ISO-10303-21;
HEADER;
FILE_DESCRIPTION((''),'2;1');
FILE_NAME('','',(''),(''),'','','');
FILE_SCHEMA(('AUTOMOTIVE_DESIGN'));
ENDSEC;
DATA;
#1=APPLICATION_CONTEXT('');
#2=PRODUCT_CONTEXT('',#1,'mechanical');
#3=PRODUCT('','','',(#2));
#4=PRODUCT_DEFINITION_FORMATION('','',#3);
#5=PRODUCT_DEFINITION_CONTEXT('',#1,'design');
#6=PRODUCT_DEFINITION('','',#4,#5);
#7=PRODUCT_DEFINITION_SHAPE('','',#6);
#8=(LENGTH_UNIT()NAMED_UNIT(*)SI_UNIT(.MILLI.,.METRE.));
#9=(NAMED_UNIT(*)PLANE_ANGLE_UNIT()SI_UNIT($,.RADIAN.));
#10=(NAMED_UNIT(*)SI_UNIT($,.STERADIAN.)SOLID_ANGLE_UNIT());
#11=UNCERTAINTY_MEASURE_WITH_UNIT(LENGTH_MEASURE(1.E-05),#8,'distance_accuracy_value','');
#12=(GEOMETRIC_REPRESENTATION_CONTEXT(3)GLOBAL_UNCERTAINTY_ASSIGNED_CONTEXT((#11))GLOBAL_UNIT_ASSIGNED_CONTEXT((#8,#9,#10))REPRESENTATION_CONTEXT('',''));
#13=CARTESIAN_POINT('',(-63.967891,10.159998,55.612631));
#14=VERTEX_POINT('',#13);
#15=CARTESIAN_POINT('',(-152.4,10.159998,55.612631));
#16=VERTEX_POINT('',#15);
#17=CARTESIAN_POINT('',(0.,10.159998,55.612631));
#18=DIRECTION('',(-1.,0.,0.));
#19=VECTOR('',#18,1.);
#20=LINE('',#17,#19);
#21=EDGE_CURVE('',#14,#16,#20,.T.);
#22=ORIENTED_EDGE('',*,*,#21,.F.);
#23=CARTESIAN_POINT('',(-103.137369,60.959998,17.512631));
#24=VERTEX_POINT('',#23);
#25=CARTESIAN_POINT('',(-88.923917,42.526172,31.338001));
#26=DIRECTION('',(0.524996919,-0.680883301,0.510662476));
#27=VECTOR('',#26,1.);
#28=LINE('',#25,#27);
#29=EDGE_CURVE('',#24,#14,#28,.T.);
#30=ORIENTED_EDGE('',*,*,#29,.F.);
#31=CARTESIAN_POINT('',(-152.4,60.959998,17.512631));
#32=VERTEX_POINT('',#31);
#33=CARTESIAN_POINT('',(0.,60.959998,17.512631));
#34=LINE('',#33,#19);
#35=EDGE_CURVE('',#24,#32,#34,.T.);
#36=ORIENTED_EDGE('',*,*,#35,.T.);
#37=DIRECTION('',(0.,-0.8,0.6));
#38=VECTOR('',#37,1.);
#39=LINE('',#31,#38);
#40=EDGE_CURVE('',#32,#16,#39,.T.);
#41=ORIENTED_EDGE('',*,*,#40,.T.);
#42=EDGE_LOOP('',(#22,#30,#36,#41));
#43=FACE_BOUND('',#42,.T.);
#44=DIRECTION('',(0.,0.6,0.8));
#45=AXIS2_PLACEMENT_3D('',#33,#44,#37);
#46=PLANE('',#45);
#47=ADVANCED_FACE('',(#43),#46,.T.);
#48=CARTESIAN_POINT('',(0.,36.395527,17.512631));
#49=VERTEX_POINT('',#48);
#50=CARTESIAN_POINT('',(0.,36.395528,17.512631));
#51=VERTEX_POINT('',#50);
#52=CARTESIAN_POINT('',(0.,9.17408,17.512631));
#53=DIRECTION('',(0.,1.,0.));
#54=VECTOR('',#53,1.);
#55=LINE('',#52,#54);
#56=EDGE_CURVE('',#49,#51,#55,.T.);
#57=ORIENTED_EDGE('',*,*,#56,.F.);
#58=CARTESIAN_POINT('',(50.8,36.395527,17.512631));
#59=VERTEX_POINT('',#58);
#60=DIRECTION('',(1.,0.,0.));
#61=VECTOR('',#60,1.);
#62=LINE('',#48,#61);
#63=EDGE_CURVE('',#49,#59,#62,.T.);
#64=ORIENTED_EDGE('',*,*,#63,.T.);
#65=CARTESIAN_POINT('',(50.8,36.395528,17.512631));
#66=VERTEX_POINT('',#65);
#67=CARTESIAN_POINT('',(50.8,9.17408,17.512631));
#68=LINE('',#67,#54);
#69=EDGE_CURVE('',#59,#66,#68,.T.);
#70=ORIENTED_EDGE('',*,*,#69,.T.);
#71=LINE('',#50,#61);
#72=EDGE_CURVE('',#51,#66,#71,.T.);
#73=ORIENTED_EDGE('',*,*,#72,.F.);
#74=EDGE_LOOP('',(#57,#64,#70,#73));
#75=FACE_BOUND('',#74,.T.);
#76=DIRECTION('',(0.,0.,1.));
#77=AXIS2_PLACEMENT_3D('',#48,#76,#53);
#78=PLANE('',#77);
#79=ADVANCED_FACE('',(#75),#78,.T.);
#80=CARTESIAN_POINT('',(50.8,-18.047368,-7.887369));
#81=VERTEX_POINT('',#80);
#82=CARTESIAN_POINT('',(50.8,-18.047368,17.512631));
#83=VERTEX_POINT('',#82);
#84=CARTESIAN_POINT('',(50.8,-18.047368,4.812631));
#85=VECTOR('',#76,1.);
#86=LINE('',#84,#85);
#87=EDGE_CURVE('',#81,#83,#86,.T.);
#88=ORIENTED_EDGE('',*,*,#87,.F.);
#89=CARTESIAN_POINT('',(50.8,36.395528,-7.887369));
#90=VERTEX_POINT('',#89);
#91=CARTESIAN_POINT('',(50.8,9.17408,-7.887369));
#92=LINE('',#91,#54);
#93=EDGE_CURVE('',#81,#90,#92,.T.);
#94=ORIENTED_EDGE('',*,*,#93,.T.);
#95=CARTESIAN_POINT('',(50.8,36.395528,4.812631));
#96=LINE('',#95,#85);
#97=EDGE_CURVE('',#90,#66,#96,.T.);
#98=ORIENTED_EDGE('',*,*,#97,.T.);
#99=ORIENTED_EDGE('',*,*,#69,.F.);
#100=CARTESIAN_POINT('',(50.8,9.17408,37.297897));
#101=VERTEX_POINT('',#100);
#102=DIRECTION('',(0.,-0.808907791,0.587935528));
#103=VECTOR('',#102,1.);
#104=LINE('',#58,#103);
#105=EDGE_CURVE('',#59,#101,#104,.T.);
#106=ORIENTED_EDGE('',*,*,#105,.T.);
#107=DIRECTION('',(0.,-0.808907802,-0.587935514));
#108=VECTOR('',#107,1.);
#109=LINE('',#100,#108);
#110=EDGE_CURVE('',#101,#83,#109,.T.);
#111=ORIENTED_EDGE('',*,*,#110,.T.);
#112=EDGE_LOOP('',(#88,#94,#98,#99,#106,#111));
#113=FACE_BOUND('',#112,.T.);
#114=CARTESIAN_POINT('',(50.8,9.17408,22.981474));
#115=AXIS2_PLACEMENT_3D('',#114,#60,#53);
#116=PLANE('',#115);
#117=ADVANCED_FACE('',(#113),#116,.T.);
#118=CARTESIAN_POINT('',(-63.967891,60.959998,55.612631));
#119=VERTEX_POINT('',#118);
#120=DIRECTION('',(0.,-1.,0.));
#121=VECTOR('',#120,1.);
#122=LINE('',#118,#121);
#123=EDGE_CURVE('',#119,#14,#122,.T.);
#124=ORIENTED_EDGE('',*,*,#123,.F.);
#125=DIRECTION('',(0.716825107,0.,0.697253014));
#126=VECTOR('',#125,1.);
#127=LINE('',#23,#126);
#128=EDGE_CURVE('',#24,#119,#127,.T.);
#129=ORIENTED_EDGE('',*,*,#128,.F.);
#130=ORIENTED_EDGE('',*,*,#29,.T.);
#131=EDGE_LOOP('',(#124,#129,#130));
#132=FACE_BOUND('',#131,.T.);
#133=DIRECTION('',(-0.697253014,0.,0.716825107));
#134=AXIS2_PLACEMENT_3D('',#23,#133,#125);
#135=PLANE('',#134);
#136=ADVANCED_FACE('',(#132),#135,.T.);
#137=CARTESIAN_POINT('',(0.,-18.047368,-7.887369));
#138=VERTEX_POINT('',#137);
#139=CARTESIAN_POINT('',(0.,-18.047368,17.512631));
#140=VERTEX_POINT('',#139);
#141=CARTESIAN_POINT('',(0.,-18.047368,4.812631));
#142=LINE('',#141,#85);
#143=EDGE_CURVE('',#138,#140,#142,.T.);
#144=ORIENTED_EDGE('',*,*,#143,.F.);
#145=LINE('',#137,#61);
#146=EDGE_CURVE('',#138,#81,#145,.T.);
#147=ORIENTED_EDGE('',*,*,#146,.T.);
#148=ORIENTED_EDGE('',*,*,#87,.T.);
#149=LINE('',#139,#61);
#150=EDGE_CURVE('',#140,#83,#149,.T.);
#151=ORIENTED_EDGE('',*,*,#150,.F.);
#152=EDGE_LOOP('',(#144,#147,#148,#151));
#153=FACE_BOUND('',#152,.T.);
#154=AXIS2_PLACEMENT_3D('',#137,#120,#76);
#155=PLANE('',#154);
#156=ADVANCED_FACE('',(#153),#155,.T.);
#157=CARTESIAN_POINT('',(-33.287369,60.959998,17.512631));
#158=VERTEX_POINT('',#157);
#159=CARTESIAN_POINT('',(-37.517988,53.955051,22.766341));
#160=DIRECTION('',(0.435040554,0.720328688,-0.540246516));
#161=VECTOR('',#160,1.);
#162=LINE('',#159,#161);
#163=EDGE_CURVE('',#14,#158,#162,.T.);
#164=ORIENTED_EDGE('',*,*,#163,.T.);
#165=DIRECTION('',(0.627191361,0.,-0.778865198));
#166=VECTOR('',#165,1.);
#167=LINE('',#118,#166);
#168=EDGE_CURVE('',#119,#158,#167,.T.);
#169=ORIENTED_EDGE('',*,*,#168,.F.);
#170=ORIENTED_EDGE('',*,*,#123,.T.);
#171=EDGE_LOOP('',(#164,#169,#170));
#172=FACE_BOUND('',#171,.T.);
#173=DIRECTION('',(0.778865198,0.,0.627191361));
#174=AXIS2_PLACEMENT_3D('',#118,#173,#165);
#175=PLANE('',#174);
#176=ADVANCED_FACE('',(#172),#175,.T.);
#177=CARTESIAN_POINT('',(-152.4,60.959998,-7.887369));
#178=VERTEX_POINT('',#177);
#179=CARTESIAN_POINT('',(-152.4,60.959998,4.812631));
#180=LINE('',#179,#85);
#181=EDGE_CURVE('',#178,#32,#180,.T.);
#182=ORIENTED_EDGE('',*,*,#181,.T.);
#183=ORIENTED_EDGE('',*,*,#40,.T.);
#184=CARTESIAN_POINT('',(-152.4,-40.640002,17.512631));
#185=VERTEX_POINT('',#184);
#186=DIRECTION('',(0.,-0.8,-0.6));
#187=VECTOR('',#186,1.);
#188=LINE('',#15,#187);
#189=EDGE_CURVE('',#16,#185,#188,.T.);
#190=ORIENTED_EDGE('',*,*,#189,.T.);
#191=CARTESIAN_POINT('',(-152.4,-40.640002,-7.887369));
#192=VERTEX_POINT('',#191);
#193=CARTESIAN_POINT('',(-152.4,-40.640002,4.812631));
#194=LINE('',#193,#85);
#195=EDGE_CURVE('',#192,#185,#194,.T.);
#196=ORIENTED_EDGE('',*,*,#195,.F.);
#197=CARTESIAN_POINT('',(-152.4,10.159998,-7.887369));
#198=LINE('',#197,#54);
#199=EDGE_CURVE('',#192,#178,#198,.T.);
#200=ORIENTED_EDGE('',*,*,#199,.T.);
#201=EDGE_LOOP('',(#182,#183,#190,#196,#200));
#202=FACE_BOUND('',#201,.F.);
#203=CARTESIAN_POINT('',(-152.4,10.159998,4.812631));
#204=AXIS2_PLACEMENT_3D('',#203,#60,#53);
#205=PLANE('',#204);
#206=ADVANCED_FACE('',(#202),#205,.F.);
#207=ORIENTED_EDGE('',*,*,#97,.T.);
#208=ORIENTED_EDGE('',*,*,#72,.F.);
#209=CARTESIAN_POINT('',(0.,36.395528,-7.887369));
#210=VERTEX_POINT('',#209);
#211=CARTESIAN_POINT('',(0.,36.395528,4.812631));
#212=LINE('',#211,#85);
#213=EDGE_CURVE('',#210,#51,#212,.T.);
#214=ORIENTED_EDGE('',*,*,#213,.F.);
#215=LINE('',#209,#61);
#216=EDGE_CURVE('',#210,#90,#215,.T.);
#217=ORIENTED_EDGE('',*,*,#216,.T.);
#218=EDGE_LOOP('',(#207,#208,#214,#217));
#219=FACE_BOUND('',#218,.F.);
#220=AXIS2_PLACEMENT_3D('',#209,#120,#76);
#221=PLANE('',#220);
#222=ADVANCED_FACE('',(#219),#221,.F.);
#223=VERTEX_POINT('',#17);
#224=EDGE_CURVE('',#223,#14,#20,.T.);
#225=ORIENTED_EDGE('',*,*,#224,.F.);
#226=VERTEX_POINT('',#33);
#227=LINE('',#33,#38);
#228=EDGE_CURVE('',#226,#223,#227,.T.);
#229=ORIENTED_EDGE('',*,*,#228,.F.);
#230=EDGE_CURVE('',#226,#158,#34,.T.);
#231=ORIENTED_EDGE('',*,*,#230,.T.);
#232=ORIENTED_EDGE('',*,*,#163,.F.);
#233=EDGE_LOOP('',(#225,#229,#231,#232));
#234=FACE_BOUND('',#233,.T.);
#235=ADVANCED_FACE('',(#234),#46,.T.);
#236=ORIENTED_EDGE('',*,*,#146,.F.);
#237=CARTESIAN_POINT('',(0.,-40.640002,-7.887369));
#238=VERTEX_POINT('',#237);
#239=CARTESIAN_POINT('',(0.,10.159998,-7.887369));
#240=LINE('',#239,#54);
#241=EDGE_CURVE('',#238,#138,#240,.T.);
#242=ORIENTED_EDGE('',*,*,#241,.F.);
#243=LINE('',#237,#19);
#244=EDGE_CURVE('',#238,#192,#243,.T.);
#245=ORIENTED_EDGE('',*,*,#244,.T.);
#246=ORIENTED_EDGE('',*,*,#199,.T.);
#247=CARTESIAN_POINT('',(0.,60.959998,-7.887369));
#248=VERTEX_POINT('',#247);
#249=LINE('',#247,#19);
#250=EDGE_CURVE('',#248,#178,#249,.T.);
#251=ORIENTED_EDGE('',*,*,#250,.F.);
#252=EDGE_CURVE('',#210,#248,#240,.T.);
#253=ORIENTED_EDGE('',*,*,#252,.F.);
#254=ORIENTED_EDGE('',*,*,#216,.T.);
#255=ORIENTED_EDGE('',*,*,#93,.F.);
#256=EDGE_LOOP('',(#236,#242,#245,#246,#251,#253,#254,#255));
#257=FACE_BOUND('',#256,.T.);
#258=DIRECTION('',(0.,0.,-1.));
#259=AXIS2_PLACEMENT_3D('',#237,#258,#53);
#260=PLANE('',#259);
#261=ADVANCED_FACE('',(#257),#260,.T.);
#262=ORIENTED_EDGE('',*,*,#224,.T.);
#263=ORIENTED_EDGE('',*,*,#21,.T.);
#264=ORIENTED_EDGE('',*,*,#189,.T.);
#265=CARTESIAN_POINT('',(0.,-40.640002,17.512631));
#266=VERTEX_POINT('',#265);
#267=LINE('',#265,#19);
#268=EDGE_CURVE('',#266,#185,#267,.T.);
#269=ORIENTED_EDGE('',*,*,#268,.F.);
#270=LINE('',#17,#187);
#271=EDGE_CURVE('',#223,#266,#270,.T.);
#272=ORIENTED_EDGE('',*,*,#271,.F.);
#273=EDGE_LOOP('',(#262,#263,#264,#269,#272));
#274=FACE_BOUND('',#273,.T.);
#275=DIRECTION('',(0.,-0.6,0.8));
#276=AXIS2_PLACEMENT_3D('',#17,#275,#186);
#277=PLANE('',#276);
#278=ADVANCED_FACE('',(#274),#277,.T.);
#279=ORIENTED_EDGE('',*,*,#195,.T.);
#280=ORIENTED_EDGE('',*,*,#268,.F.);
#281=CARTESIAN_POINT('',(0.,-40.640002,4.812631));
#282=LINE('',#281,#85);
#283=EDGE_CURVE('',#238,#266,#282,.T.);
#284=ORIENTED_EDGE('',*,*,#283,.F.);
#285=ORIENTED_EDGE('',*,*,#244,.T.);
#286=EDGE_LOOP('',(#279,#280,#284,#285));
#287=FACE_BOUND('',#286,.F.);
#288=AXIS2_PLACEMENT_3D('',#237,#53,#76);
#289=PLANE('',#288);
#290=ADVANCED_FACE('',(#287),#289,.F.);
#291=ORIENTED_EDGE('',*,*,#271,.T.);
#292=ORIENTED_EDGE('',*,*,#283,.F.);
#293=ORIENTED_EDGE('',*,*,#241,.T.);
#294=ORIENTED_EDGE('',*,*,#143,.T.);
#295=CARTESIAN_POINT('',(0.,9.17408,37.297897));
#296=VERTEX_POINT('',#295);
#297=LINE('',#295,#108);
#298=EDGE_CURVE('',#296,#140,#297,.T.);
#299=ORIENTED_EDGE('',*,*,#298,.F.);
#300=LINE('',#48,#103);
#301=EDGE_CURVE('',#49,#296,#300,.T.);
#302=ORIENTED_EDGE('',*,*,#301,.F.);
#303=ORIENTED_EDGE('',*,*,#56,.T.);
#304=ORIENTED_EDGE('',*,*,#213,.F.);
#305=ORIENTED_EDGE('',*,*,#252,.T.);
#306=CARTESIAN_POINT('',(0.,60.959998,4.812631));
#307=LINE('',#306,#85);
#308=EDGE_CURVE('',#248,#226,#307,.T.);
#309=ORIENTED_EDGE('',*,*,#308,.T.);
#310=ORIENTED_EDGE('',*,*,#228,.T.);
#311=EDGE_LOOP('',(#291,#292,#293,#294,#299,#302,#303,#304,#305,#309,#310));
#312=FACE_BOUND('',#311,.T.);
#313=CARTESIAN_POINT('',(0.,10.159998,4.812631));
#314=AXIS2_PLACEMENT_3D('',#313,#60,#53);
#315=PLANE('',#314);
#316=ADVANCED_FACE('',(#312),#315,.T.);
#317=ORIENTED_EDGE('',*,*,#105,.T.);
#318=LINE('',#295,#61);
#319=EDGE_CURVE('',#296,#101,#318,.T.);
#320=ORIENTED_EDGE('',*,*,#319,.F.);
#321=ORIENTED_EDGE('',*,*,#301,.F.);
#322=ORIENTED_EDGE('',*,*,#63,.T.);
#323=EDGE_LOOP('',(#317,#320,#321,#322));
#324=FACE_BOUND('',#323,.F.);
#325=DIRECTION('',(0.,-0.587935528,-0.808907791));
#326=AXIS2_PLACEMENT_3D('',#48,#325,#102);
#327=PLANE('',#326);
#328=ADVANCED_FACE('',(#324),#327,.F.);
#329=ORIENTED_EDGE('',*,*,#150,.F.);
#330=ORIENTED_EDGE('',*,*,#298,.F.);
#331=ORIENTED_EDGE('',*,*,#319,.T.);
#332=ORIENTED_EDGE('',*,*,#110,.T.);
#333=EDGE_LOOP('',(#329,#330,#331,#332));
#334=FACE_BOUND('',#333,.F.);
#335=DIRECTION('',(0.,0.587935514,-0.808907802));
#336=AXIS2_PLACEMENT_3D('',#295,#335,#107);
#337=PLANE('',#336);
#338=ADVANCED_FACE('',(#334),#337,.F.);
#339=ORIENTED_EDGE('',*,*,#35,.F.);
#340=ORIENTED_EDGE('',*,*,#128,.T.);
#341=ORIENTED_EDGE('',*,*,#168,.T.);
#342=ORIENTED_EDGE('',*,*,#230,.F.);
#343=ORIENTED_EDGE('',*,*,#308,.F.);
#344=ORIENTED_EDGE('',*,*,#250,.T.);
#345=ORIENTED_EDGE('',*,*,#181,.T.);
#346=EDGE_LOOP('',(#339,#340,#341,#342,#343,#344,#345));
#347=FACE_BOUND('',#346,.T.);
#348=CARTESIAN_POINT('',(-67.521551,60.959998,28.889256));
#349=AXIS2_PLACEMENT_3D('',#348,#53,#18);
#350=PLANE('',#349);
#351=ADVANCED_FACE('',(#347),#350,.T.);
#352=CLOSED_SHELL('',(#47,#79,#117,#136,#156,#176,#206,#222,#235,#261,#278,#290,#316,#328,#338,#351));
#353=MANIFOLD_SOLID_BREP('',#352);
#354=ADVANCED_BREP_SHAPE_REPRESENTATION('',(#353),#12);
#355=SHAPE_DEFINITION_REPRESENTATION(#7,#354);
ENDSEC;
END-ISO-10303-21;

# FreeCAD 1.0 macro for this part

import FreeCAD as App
import Part
import Sketcher
Q = App.Units.Quantity

doc = App.newDocument("Part")
params = doc.addObject("Spreadsheet::Sheet", "Params")
for row, (alias, value) in enumerate([
    ("sketch1_width", "4 in"),
    ("sketch1_height", "1 in"),
    ("sketch1_length", "2.5 in"),
    ("pad1_length", "6 in"),
    ("sketch2_height", "1 in"),
    ("sketch2_height2", "1 in"),
    ("pad2_length", "2 in"),
    ("sketch3_width", "2.75 in"),
    ("pad3_length", "2 in"),
], start=1):
    params.set(f"A{row}", alias)
    params.set(f"B{row}", "=" + value)
    params.setAlias(f"B{row}", alias)

body = doc.addObject("PartDesign::Body", "Body")

sketch1 = body.newObject("Sketcher::SketchObject", "Sketch")
sketch1.AttachmentSupport = (doc.getObject("YZ_Plane"), [""])
sketch1.MapMode = "FlatFace"
sketch1.addGeometry([
    Part.LineSegment(App.Vector(-41, 18, 0), App.Vector(-41, -8, 0)),
    Part.LineSegment(App.Vector(-41, -8, 0), App.Vector(61, -8, 0)),
    Part.LineSegment(App.Vector(61, -8, 0), App.Vector(61, 18, 0)),
    Part.LineSegment(App.Vector(61, 18, 0), App.Vector(10, 56, 0)),
    Part.LineSegment(App.Vector(10, 56, 0), App.Vector(-41, 18, 0)),
], False)
sketch1.addConstraint([
    Sketcher.Constraint("Coincident", 0, 2, 1, 1),
    Sketcher.Constraint("Coincident", 1, 2, 2, 1),
    Sketcher.Constraint("Coincident", 2, 2, 3, 1),
    Sketcher.Constraint("Coincident", 3, 2, 4, 1),
    Sketcher.Constraint("Coincident", 4, 2, 0, 1),
    Sketcher.Constraint("Vertical", 0),
    Sketcher.Constraint("Horizontal", 1),
    Sketcher.Constraint("Vertical", 2),
    Sketcher.Constraint("Horizontal", 2, 2, 4, 2),
    Sketcher.Constraint("Equal", 3, 4),
    Sketcher.Constraint("DistanceX", 1, 1, 1, 2, Q("4 in")),
    Sketcher.Constraint("DistanceY", 0, 2, 0, 1, Q("1 in")),
    Sketcher.Constraint("Distance", 3, Q("2.5 in")),
    Sketcher.Constraint("DistanceX", 0, 2, -1, 1, Q("1.6000001 in")),
    Sketcher.Constraint("DistanceY", 0, 2, -1, 1, 7.887369),
])
sketch1.setExpression("Constraints[10]", "Params.sketch1_width")
sketch1.setExpression("Constraints[11]", "Params.sketch1_height")
sketch1.setExpression("Constraints[12]", "Params.sketch1_length")
pad1 = body.newObject("PartDesign::Pad", "Pad")
pad1.Profile = sketch1
pad1.setExpression("Length", "Params.pad1_length")
pad1.Reversed = True

sketch2 = body.newObject("Sketcher::SketchObject", "Sketch001")
sketch2.AttachmentSupport = (doc.getObject("YZ_Plane"), [""])
sketch2.MapMode = "FlatFace"
sketch2.addGeometry([
    Part.LineSegment(App.Vector(9.17408, 37.297897, 0), App.Vector(-18.047368, 17.512631, 0)),
    Part.LineSegment(App.Vector(-18.047368, 17.512631, 0), App.Vector(-18.047368, -7.887369, 0)),
    Part.LineSegment(App.Vector(-18.047368, -7.887369, 0), App.Vector(36.395528, -7.887369, 0)),
    Part.LineSegment(App.Vector(36.395528, -7.887369, 0), App.Vector(36.395528, 17.512631, 0)),
    Part.LineSegment(App.Vector(36.395527, 17.512631, 0), App.Vector(36.395528, 17.512631, 0)),
    Part.LineSegment(App.Vector(36.395527, 17.512631, 0), App.Vector(9.17408, 37.297897, 0)),
], False)
sketch2.addConstraint([
    Sketcher.Constraint("Coincident", 0, 2, 1, 1),
    Sketcher.Constraint("Coincident", 1, 2, 2, 1),
    Sketcher.Constraint("Coincident", 2, 2, 3, 1),
    Sketcher.Constraint("Coincident", 3, 2, 4, 1),
    Sketcher.Constraint("Coincident", 4, 2, 5, 1),
    Sketcher.Constraint("Coincident", 5, 2, 0, 1),
    Sketcher.Constraint("Vertical", 1),
    Sketcher.Constraint("Horizontal", 2),
    Sketcher.Constraint("Vertical", 3),
    Sketcher.Constraint("Horizontal", 4),
    Sketcher.Constraint("DistanceY", 1, 2, 1, 1, Q("1 in")),
    Sketcher.Constraint("DistanceY", 3, 1, 3, 2, Q("1 in")),
    Sketcher.Constraint("Distance", 0, 33.652102),
    Sketcher.Constraint("Distance", 5, 33.652101),
    Sketcher.Constraint("DistanceX", 2, 1, 2, 2, 54.442895),
    Sketcher.Constraint("DistanceY", -1, 1, 0, 2, 17.512631),
    Sketcher.Constraint("DistanceX", -1, 1, 5, 2, 9.17408),
    Sketcher.Constraint("DistanceX", 0, 2, -1, 1, 18.047368),
])
sketch2.setExpression("Constraints[10]", "Params.sketch2_height")
sketch2.setExpression("Constraints[11]", "Params.sketch2_height2")
pad2 = body.newObject("PartDesign::Pad", "Pad001")
pad2.Profile = sketch2
pad2.setExpression("Length", "Params.pad2_length")

sketch3 = body.newObject("Sketcher::SketchObject", "Sketch002")
sketch3.AttachmentSupport = (doc.getObject("XZ_Plane"), [""])
sketch3.MapMode = "FlatFace"
sketch3.AttachmentOffset = App.Placement(App.Vector(0, 0, -2.3999999 * 25.4), App.Rotation())
sketch3.addGeometry([
    Part.LineSegment(App.Vector(-64, 56, 0), App.Vector(-33, 18, 0)),
    Part.LineSegment(App.Vector(-33, 18, 0), App.Vector(-103, 18, 0)),
    Part.LineSegment(App.Vector(-103, 18, 0), App.Vector(-64, 56, 0)),
], False)
sketch3.addConstraint([
    Sketcher.Constraint("Coincident", 0, 2, 1, 1),
    Sketcher.Constraint("Coincident", 1, 2, 2, 1),
    Sketcher.Constraint("Coincident", 2, 2, 0, 1),
    Sketcher.Constraint("Horizontal", 1),
    Sketcher.Constraint("DistanceX", 1, 2, 1, 1, Q("2.75 in")),
    Sketcher.Constraint("DistanceY", 0, 2, 2, 2, Q("1.5 in")),
    Sketcher.Constraint("DistanceX", 0, 2, -1, 1, 33.287369),
    Sketcher.Constraint("DistanceY", -1, 1, 0, 2, 17.512631),
    Sketcher.Constraint("DistanceX", 2, 2, -1, 1, 63.967891),
])
sketch3.setExpression("Constraints[4]", "Params.sketch3_width")
pad3 = body.newObject("PartDesign::Pad", "Pad002")
pad3.Profile = sketch3
pad3.setExpression("Length", "Params.pad3_length")

doc.recompute()
